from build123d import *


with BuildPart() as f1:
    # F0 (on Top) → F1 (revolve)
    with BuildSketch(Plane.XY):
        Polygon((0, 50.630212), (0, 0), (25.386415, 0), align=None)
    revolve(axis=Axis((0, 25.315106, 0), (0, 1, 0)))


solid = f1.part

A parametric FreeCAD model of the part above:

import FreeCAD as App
import Part
import Sketcher

V = App.Vector
Q = App.Units.Quantity


def add_polygon(sketch, points):
    """Adds a closed chain of lines whose ends are joined by coincident constraints."""
    first, n = sketch.GeometryCount, len(points)
    for a, b in zip(points, points[1:] + points[:1]):
        sketch.addGeometry(Part.LineSegment(App.Vector(*a, 0), App.Vector(*b, 0)), False)
    for i in range(n):
        sketch.addConstraint(Sketcher.Constraint("Coincident", first + i, 2, first + (i + 1) % n, 1))

doc = App.newDocument("Part")
body = doc.addObject("PartDesign::Body", "Body")

sketch1 = body.newObject("Sketcher::SketchObject", "Sketch")
sketch1.AttachmentSupport = (doc.getObject("XY_Plane"), [""])
sketch1.MapMode = "FlatFace"
add_polygon(sketch1, [(0, 50.630212), (0, 0), (25.386415, 0)])
sketch1.addConstraint([
    Sketcher.Constraint("Vertical", 0),
    Sketcher.Constraint("Horizontal", 1),
    Sketcher.Constraint("Coincident", 0, 2, -1, 1),
    Sketcher.Constraint("DistanceX", 1, 1, 1, 2, Q("25.386415 mm")),
    Sketcher.Constraint("DistanceY", 0, 2, 0, 1, Q("50.630212 mm")),
])
revolution = body.newObject("PartDesign::Revolution", "Revolution")
revolution.Profile = sketch1
revolution.ReferenceAxis = (sketch1, ["V_Axis"])
revolution.Angle = 360

doc.recompute()
